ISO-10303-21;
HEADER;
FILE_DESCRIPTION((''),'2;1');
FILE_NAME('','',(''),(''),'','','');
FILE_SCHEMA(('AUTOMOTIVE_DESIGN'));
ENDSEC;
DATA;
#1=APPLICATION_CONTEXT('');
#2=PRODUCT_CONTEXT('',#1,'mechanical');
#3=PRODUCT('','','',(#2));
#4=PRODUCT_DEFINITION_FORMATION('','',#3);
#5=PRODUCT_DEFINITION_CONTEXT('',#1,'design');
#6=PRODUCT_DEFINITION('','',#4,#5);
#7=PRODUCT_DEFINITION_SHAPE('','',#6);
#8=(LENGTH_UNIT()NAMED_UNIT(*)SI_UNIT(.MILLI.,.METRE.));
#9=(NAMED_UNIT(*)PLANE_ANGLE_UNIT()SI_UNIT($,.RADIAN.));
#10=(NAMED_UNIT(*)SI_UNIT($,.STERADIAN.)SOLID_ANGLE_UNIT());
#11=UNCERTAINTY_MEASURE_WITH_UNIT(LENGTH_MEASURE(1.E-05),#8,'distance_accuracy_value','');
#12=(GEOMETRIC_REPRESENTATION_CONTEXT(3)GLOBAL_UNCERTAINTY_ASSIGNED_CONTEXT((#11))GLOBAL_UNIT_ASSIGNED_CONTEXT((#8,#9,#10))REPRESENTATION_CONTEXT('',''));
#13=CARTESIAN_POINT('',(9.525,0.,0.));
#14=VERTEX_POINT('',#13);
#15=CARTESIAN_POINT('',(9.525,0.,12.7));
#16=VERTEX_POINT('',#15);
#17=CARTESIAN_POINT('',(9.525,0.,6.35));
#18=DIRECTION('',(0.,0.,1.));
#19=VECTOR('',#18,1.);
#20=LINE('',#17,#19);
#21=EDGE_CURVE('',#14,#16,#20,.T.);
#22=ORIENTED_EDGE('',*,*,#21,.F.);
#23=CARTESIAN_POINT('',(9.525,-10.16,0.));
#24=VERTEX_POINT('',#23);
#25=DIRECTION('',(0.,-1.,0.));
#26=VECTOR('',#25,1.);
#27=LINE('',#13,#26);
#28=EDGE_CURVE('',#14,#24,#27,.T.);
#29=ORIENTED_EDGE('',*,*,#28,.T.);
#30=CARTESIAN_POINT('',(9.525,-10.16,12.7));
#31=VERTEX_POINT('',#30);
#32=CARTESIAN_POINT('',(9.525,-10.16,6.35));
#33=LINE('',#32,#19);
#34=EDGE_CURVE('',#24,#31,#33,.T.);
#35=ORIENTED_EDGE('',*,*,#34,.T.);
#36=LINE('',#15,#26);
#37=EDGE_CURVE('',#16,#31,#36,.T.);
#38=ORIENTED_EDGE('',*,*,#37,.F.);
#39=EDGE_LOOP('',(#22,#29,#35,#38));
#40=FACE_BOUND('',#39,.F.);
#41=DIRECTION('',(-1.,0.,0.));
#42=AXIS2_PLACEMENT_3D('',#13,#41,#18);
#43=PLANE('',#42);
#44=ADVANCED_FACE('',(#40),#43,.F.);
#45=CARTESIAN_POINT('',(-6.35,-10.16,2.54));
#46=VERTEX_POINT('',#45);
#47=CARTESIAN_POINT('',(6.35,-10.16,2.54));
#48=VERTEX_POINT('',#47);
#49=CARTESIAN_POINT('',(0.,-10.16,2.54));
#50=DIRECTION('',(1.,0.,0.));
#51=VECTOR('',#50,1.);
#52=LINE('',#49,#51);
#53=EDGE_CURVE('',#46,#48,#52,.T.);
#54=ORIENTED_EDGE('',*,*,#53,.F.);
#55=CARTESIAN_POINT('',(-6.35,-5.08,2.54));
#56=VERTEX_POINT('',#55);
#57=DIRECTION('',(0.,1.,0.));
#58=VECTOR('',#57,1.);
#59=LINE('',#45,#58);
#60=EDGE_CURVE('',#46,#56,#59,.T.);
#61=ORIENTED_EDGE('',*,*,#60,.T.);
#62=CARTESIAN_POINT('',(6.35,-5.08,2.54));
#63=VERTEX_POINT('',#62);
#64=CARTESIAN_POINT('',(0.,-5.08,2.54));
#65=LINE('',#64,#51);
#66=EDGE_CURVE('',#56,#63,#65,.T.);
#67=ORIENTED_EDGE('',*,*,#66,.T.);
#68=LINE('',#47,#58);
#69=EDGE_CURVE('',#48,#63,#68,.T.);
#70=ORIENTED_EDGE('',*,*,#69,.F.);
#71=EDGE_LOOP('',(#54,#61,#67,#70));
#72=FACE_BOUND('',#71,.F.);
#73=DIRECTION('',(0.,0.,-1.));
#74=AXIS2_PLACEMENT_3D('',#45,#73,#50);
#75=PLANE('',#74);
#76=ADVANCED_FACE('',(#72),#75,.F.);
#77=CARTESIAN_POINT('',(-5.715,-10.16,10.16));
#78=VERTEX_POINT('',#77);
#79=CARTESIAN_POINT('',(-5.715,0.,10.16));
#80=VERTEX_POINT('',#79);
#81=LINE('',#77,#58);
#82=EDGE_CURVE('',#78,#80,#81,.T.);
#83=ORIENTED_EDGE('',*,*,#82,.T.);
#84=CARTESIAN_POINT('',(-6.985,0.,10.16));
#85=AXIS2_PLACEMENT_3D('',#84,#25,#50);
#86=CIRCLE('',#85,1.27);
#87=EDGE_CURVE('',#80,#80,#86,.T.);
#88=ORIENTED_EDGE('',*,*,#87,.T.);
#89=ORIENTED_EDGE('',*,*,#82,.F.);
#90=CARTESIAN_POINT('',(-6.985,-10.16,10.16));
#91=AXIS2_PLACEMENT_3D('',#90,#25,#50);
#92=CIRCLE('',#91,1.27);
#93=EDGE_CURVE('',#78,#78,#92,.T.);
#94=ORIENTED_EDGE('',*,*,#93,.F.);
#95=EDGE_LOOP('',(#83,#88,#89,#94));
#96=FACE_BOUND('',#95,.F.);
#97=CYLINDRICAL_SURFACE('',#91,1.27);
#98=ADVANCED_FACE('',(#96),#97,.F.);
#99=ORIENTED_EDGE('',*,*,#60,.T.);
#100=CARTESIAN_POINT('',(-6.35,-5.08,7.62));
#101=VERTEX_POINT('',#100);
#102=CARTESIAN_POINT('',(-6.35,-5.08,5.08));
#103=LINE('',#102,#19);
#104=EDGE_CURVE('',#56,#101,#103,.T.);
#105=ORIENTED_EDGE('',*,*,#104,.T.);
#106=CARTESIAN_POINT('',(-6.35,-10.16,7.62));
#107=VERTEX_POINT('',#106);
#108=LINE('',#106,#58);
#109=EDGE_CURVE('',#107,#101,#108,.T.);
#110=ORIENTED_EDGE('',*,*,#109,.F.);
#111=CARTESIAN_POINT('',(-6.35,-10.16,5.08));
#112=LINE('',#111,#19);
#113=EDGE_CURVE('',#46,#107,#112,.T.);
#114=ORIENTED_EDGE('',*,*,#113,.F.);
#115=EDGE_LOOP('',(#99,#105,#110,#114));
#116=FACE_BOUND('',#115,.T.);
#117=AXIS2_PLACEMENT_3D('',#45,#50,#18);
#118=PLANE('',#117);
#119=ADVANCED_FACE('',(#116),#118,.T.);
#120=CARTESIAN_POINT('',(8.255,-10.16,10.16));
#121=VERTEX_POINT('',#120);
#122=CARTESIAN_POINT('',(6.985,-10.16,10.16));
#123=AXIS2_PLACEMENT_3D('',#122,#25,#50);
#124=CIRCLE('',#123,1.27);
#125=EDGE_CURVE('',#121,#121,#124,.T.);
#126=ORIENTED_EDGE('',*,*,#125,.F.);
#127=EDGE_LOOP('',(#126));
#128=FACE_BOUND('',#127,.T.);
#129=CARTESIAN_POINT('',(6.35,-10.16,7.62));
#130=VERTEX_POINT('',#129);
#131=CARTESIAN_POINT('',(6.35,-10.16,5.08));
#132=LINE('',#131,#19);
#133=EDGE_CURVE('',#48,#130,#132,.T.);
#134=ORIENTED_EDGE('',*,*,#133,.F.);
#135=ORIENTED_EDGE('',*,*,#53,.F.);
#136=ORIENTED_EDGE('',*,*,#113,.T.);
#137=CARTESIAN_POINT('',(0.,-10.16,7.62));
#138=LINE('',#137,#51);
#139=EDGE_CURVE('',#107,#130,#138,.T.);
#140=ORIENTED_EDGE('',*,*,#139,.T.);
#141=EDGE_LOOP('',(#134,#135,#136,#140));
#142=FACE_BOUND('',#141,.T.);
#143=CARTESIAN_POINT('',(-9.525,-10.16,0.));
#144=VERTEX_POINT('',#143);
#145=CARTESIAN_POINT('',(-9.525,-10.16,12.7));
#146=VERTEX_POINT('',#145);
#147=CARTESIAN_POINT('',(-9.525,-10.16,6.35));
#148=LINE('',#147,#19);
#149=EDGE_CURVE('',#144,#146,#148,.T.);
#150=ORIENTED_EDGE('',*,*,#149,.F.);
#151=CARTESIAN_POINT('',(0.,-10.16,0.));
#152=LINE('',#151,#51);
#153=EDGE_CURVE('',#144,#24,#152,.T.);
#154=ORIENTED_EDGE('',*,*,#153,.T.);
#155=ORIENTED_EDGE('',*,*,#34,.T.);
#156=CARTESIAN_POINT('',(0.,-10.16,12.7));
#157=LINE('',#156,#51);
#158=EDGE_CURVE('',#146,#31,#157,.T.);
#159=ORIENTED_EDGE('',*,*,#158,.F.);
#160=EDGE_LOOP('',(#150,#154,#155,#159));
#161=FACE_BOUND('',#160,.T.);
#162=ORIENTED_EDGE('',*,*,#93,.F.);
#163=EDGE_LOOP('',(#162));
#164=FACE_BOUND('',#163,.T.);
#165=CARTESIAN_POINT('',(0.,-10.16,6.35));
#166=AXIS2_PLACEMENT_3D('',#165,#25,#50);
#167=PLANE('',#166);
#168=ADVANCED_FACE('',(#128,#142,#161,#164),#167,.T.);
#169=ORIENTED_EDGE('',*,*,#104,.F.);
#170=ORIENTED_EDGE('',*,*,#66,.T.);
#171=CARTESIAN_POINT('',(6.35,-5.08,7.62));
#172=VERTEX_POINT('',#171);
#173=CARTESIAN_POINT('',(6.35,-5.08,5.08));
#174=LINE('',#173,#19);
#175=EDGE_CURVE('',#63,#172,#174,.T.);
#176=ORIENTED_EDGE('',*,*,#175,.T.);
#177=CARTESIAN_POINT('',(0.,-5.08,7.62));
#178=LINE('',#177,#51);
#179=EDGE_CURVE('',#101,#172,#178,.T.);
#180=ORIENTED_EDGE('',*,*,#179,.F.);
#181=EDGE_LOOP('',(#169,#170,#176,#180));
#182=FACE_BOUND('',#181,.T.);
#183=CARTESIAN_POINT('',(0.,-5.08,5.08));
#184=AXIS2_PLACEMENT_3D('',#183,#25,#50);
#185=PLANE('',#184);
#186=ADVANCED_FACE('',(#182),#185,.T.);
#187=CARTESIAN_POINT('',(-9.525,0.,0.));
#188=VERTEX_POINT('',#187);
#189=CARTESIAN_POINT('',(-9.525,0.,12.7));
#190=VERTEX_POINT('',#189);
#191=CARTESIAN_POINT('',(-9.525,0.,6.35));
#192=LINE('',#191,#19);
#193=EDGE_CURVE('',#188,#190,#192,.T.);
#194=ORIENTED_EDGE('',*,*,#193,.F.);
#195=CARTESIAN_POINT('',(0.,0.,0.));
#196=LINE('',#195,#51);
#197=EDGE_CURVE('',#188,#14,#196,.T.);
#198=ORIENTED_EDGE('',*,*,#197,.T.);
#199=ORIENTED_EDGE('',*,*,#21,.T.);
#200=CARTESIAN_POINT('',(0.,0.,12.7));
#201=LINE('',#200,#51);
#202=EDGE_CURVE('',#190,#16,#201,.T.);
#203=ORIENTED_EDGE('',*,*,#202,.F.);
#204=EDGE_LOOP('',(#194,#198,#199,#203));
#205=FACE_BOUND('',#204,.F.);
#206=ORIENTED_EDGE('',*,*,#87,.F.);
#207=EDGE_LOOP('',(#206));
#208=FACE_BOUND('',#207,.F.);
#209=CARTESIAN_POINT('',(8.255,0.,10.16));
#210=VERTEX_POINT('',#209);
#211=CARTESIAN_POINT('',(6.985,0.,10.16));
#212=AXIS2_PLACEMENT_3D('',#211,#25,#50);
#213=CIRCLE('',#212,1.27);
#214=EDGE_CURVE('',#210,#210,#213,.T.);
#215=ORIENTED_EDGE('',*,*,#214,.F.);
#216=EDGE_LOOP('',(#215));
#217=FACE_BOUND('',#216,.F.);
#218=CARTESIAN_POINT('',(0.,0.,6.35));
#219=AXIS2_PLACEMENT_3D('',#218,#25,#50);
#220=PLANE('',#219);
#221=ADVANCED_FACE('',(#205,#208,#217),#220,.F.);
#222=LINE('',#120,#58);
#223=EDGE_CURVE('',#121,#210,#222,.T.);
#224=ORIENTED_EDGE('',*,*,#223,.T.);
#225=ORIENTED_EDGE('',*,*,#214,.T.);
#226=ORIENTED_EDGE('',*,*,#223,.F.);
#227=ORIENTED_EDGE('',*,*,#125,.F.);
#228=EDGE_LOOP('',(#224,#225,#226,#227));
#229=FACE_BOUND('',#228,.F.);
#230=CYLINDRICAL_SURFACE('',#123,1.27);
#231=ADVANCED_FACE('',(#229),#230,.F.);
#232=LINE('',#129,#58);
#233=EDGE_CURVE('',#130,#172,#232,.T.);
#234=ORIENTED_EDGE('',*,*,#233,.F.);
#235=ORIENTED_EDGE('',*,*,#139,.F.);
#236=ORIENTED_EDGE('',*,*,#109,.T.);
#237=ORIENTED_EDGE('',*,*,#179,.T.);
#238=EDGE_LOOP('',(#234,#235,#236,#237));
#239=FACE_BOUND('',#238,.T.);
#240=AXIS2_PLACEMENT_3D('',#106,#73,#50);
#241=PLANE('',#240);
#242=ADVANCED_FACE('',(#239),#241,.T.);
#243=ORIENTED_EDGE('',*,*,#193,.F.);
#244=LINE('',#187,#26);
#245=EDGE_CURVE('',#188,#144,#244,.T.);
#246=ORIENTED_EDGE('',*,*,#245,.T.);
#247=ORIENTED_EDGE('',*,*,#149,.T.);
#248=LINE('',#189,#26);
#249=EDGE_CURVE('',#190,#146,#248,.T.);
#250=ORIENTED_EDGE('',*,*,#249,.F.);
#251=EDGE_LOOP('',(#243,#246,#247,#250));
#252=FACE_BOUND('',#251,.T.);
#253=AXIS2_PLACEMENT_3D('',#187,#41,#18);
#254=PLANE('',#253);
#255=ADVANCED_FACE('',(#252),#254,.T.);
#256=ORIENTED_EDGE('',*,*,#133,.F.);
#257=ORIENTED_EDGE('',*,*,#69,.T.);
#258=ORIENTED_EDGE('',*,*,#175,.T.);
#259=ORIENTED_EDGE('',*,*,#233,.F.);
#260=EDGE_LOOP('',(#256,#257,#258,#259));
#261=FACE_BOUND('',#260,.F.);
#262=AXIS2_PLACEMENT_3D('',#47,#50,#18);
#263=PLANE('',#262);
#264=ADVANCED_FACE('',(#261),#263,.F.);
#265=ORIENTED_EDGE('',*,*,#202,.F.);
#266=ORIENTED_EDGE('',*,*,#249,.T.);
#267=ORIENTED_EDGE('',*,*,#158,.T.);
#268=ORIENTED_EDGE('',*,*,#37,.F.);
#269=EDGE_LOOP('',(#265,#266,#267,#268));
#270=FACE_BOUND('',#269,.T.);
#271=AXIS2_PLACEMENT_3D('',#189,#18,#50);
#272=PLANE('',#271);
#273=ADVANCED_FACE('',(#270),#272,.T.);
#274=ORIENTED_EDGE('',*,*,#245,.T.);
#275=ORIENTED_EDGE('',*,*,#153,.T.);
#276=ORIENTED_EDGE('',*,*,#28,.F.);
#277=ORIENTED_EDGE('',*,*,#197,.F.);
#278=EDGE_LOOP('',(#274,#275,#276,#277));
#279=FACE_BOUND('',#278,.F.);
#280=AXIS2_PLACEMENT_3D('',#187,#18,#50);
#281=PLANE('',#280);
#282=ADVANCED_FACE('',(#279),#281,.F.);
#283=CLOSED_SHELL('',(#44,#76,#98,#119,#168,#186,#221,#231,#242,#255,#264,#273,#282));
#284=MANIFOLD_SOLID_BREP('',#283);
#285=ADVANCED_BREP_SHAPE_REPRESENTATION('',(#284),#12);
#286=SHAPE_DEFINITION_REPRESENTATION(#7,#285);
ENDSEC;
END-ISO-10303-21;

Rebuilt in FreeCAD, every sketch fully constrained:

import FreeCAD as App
import Part
import Sketcher
Q = App.Units.Quantity

doc = App.newDocument("Part")
body = doc.addObject("PartDesign::Body", "Body")

# Sketch on XZ plane
sketch1 = body.newObject("Sketcher::SketchObject", "Sketch")
sketch1.AttachmentSupport = (doc.getObject("XZ_Plane"), [""])
sketch1.MapMode = "FlatFace"
sketch1.addGeometry(Part.LineSegment(App.Vector(-10, 13, 0), App.Vector(-10, 0, 0)), False)
sketch1.addGeometry(Part.LineSegment(App.Vector(-10, 0, 0), App.Vector(10, 0, 0)), False)
sketch1.addGeometry(Part.LineSegment(App.Vector(10, 0, 0), App.Vector(10, 13, 0)), False)
sketch1.addGeometry(Part.LineSegment(App.Vector(10, 13, 0), App.Vector(-10, 13, 0)), False)
sketch1.addConstraint(Sketcher.Constraint("Coincident", 0, 2, 1, 1))
sketch1.addConstraint(Sketcher.Constraint("Coincident", 1, 2, 2, 1))
sketch1.addConstraint(Sketcher.Constraint("Coincident", 2, 2, 3, 1))
sketch1.addConstraint(Sketcher.Constraint("Coincident", 3, 2, 0, 1))
sketch1.addConstraint(Sketcher.Constraint("Vertical", 0))
sketch1.addConstraint(Sketcher.Constraint("Horizontal", 1))
sketch1.addConstraint(Sketcher.Constraint("Vertical", 2))
sketch1.addConstraint(Sketcher.Constraint("Horizontal", 3))
sketch1.addConstraint(Sketcher.Constraint("Symmetric", 0, 2, 1, 2, -1, 1))
sketch1.addConstraint(Sketcher.Constraint("DistanceY", 0, 2, 0, 1, Q("0.5 in")))
sketch1.addConstraint(Sketcher.Constraint("DistanceX", 1, 1, 1, 2, Q("0.75 in")))
pad1 = body.newObject("PartDesign::Pad", "Pad")
pad1.Profile = sketch1
pad1.Length = Q("0.4 in")

# Sketch on XZ plane
sketch2 = body.newObject("Sketcher::SketchObject", "Sketch001")
sketch2.AttachmentSupport = (doc.getObject("XZ_Plane"), [""])
sketch2.MapMode = "FlatFace"
sketch2.AttachmentOffset = App.Placement(App.Vector(0, 0, 0.4 * 25.4), App.Rotation())
sketch2.addGeometry(Part.LineSegment(App.Vector(-6, 8, 0), App.Vector(-6, 3, 0)), False)
sketch2.addGeometry(Part.LineSegment(App.Vector(-6, 3, 0), App.Vector(6, 3, 0)), False)
sketch2.addGeometry(Part.LineSegment(App.Vector(6, 3, 0), App.Vector(6, 8, 0)), False)
sketch2.addGeometry(Part.LineSegment(App.Vector(6, 8, 0), App.Vector(-6, 8, 0)), False)
sketch2.addConstraint(Sketcher.Constraint("Coincident", 0, 2, 1, 1))
sketch2.addConstraint(Sketcher.Constraint("Coincident", 1, 2, 2, 1))
sketch2.addConstraint(Sketcher.Constraint("Coincident", 2, 2, 3, 1))
sketch2.addConstraint(Sketcher.Constraint("Coincident", 3, 2, 0, 1))
sketch2.addConstraint(Sketcher.Constraint("Vertical", 0))
sketch2.addConstraint(Sketcher.Constraint("Horizontal", 1))
sketch2.addConstraint(Sketcher.Constraint("Vertical", 2))
sketch2.addConstraint(Sketcher.Constraint("Horizontal", 3))
sketch2.addConstraint(Sketcher.Constraint("DistanceX", 1, 1, 1, 2, Q("0.5 in")))
sketch2.addConstraint(Sketcher.Constraint("DistanceY", 0, 2, 0, 1, Q("0.2 in")))
sketch2.addConstraint(Sketcher.Constraint("DistanceY", -1, 1, 0, 2, Q("0.1 in")))
sketch2.addConstraint(Sketcher.Constraint("DistanceX", 0, 2, -1, 1, Q("0.25 in")))
pocket1 = body.newObject("PartDesign::Pocket", "Pocket")
pocket1.Profile = sketch2
pocket1.Length = Q("0.2 in")

# Sketch on XZ plane
sketch3 = body.newObject("Sketcher::SketchObject", "Sketch002")
sketch3.AttachmentSupport = (doc.getObject("XZ_Plane"), [""])
sketch3.MapMode = "FlatFace"
sketch3.AttachmentOffset = App.Placement(App.Vector(0, 0, 0.4 * 25.4), App.Rotation())
sketch3.addGeometry(Part.Circle(App.Vector(7, 10.2, 0), App.Vector(0, 0, 1), 1.3), False)
sketch3.addGeometry(Part.Circle(App.Vector(-7, 10.2, 0), App.Vector(0, 0, 1), 1.3), False)
sketch3.addConstraint(Sketcher.Constraint("Equal", 0, 1))
sketch3.addConstraint(Sketcher.Constraint("Symmetric", 0, 3, 1, 3, -2))
sketch3.addConstraint(Sketcher.Constraint("Diameter", 0, Q("0.1 in")))
sketch3.addConstraint(Sketcher.Constraint("DistanceY", -1, 1, 0, 3, Q("0.4 in")))
sketch3.addConstraint(Sketcher.Constraint("DistanceX", 1, 3, 0, 3, Q("0.55 in")))
pocket2 = body.newObject("PartDesign::Pocket", "Pocket001")
pocket2.Profile = sketch3
pocket2.Length = Q("0.4 in")

doc.recompute()
